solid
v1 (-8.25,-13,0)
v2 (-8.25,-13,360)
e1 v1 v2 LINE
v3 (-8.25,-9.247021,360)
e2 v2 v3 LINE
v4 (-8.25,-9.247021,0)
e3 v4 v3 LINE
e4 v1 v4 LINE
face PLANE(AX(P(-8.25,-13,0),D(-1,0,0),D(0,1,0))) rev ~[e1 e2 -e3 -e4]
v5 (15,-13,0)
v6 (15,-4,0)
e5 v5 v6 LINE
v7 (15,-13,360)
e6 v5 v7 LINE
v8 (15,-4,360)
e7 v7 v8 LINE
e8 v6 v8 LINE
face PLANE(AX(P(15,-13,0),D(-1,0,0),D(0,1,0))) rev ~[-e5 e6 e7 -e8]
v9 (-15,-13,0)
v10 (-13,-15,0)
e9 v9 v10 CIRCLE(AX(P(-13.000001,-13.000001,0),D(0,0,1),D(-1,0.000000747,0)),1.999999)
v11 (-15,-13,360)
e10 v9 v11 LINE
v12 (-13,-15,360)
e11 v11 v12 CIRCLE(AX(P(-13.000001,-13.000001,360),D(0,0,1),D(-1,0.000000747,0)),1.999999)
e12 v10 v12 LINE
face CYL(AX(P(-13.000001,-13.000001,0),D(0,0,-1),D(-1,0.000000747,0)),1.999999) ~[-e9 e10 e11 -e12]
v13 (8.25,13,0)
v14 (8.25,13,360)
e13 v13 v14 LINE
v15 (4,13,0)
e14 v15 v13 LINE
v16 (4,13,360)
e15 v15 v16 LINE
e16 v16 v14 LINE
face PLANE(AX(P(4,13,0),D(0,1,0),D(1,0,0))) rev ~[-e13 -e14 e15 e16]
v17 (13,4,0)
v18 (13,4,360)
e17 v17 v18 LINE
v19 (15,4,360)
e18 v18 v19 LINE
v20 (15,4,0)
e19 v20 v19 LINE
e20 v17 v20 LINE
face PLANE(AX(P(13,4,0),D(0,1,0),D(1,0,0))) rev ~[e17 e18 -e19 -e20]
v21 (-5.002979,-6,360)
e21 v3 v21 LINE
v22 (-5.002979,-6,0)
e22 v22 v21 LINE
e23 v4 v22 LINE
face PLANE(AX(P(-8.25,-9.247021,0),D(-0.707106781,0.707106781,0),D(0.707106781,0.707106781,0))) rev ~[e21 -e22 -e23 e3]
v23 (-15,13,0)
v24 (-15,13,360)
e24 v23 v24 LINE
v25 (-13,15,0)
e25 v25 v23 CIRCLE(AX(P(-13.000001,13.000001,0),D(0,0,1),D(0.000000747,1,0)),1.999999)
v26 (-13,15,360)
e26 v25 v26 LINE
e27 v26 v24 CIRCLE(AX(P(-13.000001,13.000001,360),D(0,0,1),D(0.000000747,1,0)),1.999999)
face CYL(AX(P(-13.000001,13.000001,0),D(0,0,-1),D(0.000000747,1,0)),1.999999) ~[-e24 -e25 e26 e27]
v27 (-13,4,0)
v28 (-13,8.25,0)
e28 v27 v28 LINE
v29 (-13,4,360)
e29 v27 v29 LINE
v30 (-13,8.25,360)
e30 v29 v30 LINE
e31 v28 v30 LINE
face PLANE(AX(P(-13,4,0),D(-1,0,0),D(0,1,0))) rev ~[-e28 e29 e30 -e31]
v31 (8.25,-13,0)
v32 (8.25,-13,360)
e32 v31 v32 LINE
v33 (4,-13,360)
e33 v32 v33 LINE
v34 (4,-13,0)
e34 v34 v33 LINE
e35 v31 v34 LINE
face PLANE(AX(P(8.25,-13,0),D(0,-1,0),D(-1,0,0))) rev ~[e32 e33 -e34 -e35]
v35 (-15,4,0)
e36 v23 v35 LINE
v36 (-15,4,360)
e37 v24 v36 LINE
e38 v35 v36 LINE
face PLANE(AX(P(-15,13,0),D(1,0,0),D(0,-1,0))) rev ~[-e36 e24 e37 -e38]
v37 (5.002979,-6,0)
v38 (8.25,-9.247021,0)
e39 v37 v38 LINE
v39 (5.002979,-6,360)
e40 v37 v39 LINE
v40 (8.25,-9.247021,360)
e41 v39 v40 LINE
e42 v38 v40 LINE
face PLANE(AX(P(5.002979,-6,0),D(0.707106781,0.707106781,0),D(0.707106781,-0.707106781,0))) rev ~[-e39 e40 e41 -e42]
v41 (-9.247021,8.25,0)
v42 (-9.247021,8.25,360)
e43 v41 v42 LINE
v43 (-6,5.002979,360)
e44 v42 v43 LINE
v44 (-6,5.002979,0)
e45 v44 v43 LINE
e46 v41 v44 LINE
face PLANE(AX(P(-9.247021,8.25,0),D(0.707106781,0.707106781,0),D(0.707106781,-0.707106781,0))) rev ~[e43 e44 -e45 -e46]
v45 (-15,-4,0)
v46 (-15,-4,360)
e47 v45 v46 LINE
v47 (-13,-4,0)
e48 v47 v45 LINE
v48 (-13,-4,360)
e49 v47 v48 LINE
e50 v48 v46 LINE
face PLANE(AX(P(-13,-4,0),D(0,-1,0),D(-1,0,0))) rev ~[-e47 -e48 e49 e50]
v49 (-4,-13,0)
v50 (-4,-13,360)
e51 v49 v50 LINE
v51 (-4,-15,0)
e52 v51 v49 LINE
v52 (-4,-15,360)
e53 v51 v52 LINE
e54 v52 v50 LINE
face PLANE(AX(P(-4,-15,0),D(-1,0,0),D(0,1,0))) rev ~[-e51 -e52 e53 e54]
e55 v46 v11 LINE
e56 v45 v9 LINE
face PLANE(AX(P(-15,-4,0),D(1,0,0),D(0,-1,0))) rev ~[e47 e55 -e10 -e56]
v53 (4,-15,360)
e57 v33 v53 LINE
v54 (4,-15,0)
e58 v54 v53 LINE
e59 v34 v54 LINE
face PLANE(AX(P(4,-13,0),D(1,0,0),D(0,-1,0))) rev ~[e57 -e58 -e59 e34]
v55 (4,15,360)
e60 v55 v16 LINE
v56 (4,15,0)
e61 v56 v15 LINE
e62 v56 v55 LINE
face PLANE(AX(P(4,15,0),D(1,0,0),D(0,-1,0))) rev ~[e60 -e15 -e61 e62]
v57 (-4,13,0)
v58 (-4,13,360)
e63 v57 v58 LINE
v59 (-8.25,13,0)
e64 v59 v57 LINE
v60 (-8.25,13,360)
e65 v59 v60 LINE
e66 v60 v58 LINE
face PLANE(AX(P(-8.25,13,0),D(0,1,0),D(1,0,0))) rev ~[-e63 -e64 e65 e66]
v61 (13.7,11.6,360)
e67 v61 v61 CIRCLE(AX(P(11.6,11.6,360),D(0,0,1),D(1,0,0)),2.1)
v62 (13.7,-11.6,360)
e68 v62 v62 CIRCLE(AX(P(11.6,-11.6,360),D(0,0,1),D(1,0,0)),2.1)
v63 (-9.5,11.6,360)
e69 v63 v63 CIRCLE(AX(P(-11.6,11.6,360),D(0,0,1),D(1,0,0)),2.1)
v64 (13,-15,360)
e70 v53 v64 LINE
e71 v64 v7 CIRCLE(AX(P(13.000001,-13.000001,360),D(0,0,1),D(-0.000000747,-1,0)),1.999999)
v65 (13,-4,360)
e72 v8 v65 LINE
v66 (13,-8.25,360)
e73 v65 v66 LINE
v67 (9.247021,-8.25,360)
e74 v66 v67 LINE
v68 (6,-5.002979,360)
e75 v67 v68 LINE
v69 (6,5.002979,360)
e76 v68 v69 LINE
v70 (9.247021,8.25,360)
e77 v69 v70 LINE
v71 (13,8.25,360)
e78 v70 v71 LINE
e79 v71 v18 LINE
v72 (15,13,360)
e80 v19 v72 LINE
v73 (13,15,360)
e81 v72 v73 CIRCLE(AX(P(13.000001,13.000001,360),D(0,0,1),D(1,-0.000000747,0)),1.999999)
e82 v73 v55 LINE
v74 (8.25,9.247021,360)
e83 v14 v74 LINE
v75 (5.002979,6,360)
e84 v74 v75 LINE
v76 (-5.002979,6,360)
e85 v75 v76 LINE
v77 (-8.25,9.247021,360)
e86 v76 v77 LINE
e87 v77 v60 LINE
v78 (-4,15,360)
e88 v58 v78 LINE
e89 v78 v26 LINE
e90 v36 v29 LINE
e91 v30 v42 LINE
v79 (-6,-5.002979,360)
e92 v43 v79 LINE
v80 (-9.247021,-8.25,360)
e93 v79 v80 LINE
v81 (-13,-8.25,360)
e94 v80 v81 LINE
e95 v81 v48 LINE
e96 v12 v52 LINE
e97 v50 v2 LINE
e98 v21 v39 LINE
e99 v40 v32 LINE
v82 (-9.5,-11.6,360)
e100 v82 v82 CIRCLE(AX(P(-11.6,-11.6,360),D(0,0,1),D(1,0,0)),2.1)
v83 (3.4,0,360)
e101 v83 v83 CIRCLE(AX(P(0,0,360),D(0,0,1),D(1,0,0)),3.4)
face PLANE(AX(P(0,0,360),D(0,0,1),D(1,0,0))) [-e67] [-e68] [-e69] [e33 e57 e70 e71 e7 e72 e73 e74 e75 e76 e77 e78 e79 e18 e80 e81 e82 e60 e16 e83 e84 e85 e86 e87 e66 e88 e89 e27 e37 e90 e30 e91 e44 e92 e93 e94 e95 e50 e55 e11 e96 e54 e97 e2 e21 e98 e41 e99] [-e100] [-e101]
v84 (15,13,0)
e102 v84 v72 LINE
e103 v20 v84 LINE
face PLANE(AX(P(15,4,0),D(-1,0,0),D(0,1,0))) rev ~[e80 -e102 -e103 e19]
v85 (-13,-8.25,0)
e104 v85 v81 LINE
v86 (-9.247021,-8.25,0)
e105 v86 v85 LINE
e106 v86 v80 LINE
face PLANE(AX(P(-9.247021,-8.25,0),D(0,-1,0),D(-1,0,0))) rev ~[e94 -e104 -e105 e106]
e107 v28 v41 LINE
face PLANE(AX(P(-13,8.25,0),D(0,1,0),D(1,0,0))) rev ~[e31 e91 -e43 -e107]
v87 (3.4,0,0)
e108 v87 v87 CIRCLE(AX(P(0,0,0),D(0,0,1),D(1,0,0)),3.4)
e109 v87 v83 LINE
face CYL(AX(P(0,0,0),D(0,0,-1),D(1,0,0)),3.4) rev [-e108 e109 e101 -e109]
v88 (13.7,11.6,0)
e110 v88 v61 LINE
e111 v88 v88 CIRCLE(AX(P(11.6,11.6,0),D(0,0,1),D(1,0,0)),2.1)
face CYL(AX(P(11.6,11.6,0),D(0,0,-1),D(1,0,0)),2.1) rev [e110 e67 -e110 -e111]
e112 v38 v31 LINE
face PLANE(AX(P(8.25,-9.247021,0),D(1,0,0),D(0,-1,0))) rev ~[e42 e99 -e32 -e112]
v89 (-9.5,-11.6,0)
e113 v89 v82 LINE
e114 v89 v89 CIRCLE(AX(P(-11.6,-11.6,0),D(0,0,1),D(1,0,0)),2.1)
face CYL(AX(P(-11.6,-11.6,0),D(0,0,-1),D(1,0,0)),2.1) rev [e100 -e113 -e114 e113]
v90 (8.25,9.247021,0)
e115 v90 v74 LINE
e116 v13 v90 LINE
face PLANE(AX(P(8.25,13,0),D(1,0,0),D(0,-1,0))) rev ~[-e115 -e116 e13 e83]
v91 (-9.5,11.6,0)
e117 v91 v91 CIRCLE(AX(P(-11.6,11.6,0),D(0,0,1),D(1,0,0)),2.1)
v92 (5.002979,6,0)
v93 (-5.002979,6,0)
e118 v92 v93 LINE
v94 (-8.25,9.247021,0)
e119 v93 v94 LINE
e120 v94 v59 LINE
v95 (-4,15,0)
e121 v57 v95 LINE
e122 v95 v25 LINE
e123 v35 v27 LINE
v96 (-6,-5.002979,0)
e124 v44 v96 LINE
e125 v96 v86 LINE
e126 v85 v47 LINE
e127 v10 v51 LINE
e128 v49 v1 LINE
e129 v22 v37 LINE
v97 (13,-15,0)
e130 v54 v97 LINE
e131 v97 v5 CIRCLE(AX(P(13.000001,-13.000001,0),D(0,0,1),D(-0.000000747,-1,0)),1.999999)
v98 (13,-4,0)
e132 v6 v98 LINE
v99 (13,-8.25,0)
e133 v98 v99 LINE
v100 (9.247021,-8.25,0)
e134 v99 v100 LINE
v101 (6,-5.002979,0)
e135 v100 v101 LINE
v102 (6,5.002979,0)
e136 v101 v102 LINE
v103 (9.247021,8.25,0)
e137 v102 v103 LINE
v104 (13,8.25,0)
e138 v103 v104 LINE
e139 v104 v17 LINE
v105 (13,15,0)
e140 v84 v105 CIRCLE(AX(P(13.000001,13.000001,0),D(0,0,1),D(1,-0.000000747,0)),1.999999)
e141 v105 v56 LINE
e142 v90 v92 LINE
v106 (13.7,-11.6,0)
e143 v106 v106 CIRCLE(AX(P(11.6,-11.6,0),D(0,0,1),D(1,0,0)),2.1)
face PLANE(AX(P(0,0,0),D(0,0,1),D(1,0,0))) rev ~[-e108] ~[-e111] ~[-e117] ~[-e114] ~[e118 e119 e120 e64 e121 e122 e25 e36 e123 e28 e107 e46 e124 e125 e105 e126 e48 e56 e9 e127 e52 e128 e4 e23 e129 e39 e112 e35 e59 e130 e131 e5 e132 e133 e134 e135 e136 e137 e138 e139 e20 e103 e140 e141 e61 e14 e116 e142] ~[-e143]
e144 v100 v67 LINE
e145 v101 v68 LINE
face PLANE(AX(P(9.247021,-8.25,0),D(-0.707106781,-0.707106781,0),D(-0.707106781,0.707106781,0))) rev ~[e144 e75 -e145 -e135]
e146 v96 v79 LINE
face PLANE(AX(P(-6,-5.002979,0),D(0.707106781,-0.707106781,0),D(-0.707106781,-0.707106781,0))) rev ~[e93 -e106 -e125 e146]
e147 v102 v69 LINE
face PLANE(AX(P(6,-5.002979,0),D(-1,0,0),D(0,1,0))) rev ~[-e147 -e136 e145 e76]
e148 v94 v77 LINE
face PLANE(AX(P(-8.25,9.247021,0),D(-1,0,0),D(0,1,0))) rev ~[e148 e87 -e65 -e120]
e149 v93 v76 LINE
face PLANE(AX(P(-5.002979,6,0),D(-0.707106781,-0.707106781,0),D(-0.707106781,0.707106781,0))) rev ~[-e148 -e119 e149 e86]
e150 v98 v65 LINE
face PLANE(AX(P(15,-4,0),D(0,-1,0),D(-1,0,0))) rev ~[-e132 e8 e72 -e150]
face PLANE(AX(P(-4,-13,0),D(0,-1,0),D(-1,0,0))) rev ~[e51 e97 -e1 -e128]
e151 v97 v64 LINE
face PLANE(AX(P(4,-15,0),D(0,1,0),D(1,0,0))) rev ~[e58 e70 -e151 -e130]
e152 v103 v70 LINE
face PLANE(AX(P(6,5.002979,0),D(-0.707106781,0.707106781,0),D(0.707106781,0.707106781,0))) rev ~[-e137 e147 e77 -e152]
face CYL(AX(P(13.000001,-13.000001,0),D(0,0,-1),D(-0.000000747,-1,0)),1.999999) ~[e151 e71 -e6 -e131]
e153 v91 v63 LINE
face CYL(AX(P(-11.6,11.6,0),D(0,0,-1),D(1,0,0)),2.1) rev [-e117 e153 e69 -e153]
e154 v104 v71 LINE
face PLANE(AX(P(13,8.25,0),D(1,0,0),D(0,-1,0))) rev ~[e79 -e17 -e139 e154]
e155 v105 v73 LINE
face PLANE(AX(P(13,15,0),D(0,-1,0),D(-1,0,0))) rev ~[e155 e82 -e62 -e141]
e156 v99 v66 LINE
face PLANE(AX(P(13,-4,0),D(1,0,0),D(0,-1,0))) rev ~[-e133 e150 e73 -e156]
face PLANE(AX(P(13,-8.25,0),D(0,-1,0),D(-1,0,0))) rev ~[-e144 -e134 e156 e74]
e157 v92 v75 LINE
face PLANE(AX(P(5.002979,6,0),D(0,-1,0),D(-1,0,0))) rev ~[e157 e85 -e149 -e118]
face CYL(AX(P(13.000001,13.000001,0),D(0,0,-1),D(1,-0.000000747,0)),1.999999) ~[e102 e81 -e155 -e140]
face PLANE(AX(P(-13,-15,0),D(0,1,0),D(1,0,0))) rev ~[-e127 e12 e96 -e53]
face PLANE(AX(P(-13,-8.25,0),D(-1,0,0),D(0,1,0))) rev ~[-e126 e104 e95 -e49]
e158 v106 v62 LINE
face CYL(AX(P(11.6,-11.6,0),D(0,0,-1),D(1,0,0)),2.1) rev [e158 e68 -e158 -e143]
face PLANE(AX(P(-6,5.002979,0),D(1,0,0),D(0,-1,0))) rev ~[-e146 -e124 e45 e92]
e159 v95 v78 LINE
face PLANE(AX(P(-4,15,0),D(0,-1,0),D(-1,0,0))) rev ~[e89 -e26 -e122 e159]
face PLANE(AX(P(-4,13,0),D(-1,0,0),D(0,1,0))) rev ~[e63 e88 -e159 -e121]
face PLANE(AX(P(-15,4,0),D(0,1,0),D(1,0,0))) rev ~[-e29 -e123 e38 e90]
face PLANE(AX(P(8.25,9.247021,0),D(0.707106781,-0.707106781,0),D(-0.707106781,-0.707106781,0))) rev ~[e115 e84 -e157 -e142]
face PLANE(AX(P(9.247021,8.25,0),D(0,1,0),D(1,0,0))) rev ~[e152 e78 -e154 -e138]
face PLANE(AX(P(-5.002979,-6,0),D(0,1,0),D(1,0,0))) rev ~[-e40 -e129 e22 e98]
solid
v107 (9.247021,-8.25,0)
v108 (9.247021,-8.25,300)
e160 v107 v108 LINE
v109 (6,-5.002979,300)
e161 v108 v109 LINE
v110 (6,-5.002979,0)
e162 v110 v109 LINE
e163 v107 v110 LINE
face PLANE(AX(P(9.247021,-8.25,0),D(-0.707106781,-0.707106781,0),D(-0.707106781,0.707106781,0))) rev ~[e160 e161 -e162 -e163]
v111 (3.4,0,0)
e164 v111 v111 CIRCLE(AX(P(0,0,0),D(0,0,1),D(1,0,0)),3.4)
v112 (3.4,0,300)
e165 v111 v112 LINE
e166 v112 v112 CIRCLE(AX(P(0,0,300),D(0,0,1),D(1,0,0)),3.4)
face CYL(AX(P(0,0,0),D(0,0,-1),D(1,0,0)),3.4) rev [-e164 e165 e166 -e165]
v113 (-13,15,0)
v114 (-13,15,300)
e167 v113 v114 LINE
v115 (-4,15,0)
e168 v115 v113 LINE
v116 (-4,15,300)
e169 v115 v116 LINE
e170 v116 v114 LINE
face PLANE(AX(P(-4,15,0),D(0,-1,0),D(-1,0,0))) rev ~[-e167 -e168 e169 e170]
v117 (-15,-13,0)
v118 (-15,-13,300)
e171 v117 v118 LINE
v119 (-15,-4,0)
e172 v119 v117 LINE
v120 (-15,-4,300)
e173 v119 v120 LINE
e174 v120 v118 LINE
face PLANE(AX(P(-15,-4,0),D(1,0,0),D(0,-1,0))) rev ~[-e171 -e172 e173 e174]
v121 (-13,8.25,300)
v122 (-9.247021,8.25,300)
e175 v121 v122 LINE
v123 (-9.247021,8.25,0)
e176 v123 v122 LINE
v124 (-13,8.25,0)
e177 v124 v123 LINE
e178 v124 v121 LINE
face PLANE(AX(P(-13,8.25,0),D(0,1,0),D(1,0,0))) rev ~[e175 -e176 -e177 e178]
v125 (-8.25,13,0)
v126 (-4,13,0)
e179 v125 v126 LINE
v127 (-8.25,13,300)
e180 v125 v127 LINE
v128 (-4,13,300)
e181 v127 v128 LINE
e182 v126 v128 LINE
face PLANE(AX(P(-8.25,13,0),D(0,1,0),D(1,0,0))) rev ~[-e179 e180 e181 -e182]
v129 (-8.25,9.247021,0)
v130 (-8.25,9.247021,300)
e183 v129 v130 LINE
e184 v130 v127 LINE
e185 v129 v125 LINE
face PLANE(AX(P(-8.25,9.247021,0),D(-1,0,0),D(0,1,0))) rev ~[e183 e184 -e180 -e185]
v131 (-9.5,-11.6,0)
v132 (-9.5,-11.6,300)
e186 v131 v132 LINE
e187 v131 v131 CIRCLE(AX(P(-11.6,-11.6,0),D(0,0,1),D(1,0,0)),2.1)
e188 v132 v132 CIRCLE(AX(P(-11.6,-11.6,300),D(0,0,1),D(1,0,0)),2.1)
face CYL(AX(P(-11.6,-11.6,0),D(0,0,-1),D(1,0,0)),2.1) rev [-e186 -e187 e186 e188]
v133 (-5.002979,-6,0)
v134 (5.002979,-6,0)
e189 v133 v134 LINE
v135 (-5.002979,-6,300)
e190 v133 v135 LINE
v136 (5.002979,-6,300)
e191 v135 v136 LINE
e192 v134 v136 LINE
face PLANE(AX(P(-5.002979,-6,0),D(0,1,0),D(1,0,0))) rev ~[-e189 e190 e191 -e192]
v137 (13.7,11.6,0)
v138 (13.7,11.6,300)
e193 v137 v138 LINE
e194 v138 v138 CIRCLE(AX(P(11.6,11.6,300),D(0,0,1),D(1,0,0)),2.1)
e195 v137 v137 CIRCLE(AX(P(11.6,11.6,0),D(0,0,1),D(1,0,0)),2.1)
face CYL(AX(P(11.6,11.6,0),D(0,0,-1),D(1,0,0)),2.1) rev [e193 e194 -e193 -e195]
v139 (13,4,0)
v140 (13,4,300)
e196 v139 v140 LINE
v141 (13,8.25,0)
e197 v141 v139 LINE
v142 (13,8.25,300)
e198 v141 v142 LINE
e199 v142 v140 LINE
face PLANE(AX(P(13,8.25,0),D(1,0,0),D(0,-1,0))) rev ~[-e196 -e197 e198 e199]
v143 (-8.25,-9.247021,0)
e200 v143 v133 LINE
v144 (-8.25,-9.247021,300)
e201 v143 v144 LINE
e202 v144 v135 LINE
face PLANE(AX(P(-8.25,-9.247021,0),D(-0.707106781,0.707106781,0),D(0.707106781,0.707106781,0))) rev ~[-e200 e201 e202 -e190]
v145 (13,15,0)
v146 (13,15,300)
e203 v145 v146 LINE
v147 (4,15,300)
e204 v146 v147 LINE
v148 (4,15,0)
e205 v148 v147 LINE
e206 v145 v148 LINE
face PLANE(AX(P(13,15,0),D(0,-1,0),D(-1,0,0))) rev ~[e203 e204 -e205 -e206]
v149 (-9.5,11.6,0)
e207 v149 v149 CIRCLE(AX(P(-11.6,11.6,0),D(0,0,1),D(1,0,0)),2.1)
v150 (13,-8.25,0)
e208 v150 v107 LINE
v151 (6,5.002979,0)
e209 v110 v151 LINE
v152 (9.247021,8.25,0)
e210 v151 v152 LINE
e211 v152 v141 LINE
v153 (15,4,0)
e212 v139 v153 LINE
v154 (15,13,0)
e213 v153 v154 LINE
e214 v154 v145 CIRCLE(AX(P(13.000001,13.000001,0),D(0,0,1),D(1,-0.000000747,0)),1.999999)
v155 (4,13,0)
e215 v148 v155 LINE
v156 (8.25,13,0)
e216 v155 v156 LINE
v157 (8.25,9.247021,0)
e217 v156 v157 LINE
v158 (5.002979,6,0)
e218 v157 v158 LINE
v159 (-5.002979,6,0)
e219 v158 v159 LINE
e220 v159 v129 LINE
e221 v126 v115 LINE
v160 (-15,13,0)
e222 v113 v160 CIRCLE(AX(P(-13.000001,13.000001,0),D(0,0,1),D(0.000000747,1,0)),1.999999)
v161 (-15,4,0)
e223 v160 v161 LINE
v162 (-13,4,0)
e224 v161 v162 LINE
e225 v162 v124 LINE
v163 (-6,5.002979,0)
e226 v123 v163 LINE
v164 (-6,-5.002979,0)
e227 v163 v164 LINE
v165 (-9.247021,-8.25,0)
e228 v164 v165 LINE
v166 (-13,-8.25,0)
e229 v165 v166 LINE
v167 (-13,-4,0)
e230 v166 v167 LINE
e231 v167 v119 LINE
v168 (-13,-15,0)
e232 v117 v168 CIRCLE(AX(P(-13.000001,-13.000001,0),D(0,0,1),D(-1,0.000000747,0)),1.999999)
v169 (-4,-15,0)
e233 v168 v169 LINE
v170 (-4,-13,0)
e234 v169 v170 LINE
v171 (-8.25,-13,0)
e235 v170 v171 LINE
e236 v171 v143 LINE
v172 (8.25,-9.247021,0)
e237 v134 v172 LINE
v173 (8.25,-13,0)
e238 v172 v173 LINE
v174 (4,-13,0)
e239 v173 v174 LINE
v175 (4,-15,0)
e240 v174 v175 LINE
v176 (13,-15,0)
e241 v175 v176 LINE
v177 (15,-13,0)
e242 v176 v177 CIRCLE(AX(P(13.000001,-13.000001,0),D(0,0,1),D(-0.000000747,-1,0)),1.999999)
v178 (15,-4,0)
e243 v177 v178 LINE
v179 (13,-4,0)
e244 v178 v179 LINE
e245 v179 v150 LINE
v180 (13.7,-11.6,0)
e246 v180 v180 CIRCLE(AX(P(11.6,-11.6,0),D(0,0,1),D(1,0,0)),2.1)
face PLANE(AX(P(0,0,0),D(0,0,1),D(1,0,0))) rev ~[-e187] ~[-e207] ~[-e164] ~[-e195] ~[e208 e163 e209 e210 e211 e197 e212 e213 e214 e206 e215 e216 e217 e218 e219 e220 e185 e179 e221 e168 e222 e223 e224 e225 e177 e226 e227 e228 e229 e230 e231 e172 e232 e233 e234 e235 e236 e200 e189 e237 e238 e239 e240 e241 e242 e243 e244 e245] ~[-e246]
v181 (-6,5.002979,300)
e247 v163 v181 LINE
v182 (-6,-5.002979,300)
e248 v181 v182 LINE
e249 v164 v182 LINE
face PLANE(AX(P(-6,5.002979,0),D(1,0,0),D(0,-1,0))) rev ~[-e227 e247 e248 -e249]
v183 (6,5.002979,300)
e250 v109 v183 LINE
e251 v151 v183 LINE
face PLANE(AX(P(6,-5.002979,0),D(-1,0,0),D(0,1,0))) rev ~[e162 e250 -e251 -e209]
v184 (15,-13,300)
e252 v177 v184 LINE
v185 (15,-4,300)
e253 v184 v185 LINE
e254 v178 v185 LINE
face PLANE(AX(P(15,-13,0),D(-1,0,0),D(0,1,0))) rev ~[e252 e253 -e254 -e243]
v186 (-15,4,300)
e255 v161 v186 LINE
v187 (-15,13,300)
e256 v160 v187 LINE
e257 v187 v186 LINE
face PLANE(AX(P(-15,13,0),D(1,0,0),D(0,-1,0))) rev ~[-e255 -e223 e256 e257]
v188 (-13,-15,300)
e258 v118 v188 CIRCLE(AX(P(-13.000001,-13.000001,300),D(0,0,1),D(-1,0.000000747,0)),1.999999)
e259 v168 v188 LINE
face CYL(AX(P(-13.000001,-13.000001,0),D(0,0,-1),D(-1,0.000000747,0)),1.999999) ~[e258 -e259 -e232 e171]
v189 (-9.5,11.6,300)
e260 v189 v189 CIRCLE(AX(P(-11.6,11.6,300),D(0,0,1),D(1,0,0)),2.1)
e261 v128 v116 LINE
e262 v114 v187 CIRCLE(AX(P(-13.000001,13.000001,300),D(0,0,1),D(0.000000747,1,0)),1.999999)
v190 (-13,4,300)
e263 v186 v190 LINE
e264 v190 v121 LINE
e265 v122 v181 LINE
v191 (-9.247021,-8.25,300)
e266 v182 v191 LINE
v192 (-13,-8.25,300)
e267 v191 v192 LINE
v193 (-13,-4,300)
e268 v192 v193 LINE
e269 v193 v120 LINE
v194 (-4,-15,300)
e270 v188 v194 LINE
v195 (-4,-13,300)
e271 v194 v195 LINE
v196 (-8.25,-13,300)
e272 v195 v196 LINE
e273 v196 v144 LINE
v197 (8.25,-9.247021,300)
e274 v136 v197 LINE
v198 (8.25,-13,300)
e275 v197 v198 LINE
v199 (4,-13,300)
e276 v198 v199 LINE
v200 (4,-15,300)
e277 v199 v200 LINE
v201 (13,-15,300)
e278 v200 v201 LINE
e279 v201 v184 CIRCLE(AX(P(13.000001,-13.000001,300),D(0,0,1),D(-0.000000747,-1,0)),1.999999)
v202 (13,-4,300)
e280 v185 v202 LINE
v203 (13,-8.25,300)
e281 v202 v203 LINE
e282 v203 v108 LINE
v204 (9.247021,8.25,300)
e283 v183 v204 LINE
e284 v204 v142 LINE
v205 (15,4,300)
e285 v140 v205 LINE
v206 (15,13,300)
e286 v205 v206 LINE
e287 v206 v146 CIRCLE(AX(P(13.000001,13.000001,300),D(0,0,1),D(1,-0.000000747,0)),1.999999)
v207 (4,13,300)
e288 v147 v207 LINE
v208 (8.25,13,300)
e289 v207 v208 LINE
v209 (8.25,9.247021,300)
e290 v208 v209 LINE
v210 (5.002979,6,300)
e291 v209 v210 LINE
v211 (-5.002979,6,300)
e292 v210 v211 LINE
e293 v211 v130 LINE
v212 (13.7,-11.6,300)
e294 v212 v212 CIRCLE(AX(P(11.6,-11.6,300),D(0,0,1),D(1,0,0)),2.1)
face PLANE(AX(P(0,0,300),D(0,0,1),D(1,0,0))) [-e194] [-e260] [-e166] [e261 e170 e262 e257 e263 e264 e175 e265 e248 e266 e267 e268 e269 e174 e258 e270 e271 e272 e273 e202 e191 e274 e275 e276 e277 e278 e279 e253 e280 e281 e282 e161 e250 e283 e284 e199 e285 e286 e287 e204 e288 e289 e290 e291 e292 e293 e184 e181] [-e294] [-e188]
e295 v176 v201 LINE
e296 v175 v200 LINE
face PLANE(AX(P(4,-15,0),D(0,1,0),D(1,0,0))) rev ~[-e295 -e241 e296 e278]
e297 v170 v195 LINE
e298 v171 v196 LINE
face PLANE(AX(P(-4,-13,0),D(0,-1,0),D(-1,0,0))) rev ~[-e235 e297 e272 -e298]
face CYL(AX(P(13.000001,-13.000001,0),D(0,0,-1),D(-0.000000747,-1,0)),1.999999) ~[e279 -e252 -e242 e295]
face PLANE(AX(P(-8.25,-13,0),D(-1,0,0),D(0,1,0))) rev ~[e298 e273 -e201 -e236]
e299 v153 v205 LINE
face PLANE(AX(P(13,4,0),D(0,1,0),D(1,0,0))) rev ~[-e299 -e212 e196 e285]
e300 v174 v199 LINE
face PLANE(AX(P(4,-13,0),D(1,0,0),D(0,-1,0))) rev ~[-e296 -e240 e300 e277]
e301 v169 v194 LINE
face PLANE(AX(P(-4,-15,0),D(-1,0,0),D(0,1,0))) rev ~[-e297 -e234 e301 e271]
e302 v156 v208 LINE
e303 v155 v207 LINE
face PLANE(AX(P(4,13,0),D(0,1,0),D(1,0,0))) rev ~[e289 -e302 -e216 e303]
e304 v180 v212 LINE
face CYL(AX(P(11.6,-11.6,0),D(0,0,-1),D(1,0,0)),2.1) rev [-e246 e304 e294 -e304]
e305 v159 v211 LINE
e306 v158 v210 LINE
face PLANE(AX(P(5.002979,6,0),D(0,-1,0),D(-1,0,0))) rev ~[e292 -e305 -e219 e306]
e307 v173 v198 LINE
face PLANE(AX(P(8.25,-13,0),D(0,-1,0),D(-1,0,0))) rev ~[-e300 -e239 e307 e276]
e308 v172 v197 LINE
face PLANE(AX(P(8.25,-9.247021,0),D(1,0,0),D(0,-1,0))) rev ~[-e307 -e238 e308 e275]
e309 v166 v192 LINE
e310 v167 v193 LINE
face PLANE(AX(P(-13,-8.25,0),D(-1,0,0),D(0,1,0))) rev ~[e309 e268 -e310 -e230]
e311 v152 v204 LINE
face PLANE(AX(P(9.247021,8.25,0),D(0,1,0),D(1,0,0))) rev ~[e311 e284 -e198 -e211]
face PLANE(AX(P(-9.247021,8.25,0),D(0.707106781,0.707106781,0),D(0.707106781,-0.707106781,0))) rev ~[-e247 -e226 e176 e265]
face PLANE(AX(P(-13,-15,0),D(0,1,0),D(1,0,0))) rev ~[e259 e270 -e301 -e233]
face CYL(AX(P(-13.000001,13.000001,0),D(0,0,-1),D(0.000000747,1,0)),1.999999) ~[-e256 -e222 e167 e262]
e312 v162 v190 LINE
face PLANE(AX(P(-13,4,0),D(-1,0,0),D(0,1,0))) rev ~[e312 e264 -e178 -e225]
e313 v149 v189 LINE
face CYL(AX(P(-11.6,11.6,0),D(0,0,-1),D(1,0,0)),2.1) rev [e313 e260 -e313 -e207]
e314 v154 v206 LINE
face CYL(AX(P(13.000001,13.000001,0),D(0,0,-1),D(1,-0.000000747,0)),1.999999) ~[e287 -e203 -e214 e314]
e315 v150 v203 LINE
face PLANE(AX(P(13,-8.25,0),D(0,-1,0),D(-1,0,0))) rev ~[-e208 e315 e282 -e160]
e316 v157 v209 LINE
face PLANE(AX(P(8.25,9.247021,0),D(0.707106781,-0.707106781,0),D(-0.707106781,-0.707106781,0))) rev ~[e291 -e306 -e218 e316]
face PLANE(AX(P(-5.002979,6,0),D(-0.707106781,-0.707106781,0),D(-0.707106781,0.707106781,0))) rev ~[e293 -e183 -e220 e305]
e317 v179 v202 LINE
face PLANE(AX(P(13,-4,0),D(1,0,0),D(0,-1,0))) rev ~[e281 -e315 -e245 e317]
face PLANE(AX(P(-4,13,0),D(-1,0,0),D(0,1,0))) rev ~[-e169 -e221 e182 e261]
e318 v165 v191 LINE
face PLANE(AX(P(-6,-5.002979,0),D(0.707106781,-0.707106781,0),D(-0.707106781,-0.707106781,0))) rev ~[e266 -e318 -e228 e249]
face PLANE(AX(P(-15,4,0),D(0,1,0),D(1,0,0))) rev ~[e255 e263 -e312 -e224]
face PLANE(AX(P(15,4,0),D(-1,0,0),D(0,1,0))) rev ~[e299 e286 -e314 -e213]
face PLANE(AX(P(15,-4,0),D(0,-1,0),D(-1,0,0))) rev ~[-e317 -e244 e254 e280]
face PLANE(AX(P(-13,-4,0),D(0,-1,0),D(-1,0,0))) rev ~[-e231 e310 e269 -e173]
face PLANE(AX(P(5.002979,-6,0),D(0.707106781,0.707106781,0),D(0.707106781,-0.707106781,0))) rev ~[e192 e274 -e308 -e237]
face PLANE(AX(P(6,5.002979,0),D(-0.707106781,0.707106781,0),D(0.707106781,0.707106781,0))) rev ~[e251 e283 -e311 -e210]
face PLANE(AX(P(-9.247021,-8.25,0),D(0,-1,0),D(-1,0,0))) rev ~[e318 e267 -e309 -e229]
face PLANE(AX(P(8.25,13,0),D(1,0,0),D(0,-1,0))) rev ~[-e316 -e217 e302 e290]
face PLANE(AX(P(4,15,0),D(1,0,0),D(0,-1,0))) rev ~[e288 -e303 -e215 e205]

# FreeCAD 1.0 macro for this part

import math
import FreeCAD as App
import Part
import Sketcher

doc = App.newDocument("Part")
body = doc.addObject("PartDesign::Body", "Body")

# Sketch on XY plane
sketch1 = body.newObject("Sketcher::SketchObject", "Sketch")
sketch1.AttachmentSupport = (doc.getObject("XY_Plane"), [""])
sketch1.MapMode = "FlatFace"
sketch1.addGeometry([
    Part.LineSegment(App.Vector(13, 15, 0), App.Vector(4, 15, 0)),  # 0
    Part.LineSegment(App.Vector(4, 15, 0), App.Vector(4, 13, 0)),  # 1
    Part.LineSegment(App.Vector(4, 13, 0), App.Vector(8.25, 13, 0)),  # 2
    Part.LineSegment(App.Vector(8.25, 13, 0), App.Vector(8.25, 9.247021, 0)),  # 3
    Part.LineSegment(App.Vector(8.25, 9.247021, 0), App.Vector(5.002979, 6, 0)),  # 4
    Part.LineSegment(App.Vector(5.002979, 6, 0), App.Vector(-5.002979, 6, 0)),  # 5
    Part.LineSegment(App.Vector(-5.002979, 6, 0), App.Vector(-8.25, 9.247021, 0)),  # 6
    Part.LineSegment(App.Vector(-8.25, 9.247021, 0), App.Vector(-8.25, 13, 0)),  # 7
    Part.LineSegment(App.Vector(-8.25, 13, 0), App.Vector(-4, 13, 0)),  # 8
    Part.LineSegment(App.Vector(-4, 13, 0), App.Vector(-4, 15, 0)),  # 9
    Part.LineSegment(App.Vector(-4, 15, 0), App.Vector(-13, 15, 0)),  # 10
    Part.ArcOfCircle(Part.Circle(App.Vector(-13.000001, 13.000001, 0), App.Vector(0, 0, 1), 1.999999), math.radians(89.999957), math.radians(180.000043)),  # 11
    Part.LineSegment(App.Vector(-15, 13, 0), App.Vector(-15, 4, 0)),  # 12
    Part.LineSegment(App.Vector(-15, 4, 0), App.Vector(-13, 4, 0)),  # 13
    Part.LineSegment(App.Vector(-13, 4, 0), App.Vector(-13, 8.25, 0)),  # 14
    Part.LineSegment(App.Vector(-13, 8.25, 0), App.Vector(-9.247021, 8.25, 0)),  # 15
    Part.LineSegment(App.Vector(-9.247021, 8.25, 0), App.Vector(-6, 5.002979, 0)),  # 16
    Part.LineSegment(App.Vector(-6, 5.002979, 0), App.Vector(-6, -5.002979, 0)),  # 17
    Part.LineSegment(App.Vector(-6, -5.002979, 0), App.Vector(-9.247021, -8.25, 0)),  # 18
    Part.LineSegment(App.Vector(-9.247021, -8.25, 0), App.Vector(-13, -8.25, 0)),  # 19
    Part.LineSegment(App.Vector(-13, -8.25, 0), App.Vector(-13, -4, 0)),  # 20
    Part.LineSegment(App.Vector(-13, -4, 0), App.Vector(-15, -4, 0)),  # 21
    Part.LineSegment(App.Vector(-15, -4, 0), App.Vector(-15, -13, 0)),  # 22
    Part.ArcOfCircle(Part.Circle(App.Vector(-13.000001, -13.000001, 0), App.Vector(0, 0, 1), 1.999999), math.radians(179.999957), math.radians(270.000043)),  # 23
    Part.LineSegment(App.Vector(-13, -15, 0), App.Vector(-4, -15, 0)),  # 24
    Part.LineSegment(App.Vector(-4, -15, 0), App.Vector(-4, -13, 0)),  # 25
    Part.LineSegment(App.Vector(-4, -13, 0), App.Vector(-8.25, -13, 0)),  # 26
    Part.LineSegment(App.Vector(-8.25, -13, 0), App.Vector(-8.25, -9.247021, 0)),  # 27
    Part.LineSegment(App.Vector(-8.25, -9.247021, 0), App.Vector(-5.002979, -6, 0)),  # 28
    Part.LineSegment(App.Vector(-5.002979, -6, 0), App.Vector(5.002979, -6, 0)),  # 29
    Part.LineSegment(App.Vector(5.002979, -6, 0), App.Vector(8.25, -9.247021, 0)),  # 30
    Part.LineSegment(App.Vector(8.25, -9.247021, 0), App.Vector(8.25, -13, 0)),  # 31
    Part.LineSegment(App.Vector(8.25, -13, 0), App.Vector(4, -13, 0)),  # 32
    Part.LineSegment(App.Vector(4, -13, 0), App.Vector(4, -15, 0)),  # 33
    Part.LineSegment(App.Vector(4, -15, 0), App.Vector(13, -15, 0)),  # 34
    Part.ArcOfCircle(Part.Circle(App.Vector(13.000001, -13.000001, 0), App.Vector(0, 0, 1), 1.999999), math.radians(-90.000043), math.radians(0.000043)),  # 35
    Part.LineSegment(App.Vector(15, -13, 0), App.Vector(15, -4, 0)),  # 36
    Part.LineSegment(App.Vector(15, -4, 0), App.Vector(13, -4, 0)),  # 37
    Part.LineSegment(App.Vector(13, -4, 0), App.Vector(13, -8.25, 0)),  # 38
    Part.LineSegment(App.Vector(13, -8.25, 0), App.Vector(9.247021, -8.25, 0)),  # 39
    Part.LineSegment(App.Vector(9.247021, -8.25, 0), App.Vector(6, -5.002979, 0)),  # 40
    Part.LineSegment(App.Vector(6, -5.002979, 0), App.Vector(6, 5.002979, 0)),  # 41
    Part.LineSegment(App.Vector(6, 5.002979, 0), App.Vector(9.247021, 8.25, 0)),  # 42
    Part.LineSegment(App.Vector(9.247021, 8.25, 0), App.Vector(13, 8.25, 0)),  # 43
    Part.LineSegment(App.Vector(13, 8.25, 0), App.Vector(13, 4, 0)),  # 44
    Part.LineSegment(App.Vector(13, 4, 0), App.Vector(15, 4, 0)),  # 45
    Part.LineSegment(App.Vector(15, 4, 0), App.Vector(15, 13, 0)),  # 46
    Part.ArcOfCircle(Part.Circle(App.Vector(13.000001, 13.000001, 0), App.Vector(0, 0, 1), 1.999999), math.radians(-0.000043), math.radians(90.000043)),  # 47
    Part.Circle(App.Vector(-11.6, -11.6, 0), App.Vector(0, 0, 1), 2.1),  # 48
    Part.Circle(App.Vector(11.6, -11.6, 0), App.Vector(0, 0, 1), 2.1),  # 49
    Part.Circle(App.Vector(-11.6, 11.6, 0), App.Vector(0, 0, 1), 2.1),  # 50
    Part.Circle(App.Vector(0, 0, 0), App.Vector(0, 0, 1), 3.4),  # 51
    Part.Circle(App.Vector(11.6, 11.6, 0), App.Vector(0, 0, 1), 2.1),  # 52
], False)
sketch1.addConstraint([
    Sketcher.Constraint("Coincident", 0, 2, 1, 1),
    Sketcher.Constraint("Coincident", 1, 2, 2, 1),
    Sketcher.Constraint("Coincident", 2, 2, 3, 1),
    Sketcher.Constraint("Coincident", 3, 2, 4, 1),
    Sketcher.Constraint("Coincident", 4, 2, 5, 1),
    Sketcher.Constraint("Coincident", 5, 2, 6, 1),
    Sketcher.Constraint("Coincident", 6, 2, 7, 1),
    Sketcher.Constraint("Coincident", 7, 2, 8, 1),
    Sketcher.Constraint("Coincident", 8, 2, 9, 1),
    Sketcher.Constraint("Coincident", 9, 2, 10, 1),
    Sketcher.Constraint("Tangent", 10, 2, 11, 1),
    Sketcher.Constraint("Tangent", 11, 2, 12, 1),
    Sketcher.Constraint("Coincident", 12, 2, 13, 1),
    Sketcher.Constraint("Coincident", 13, 2, 14, 1),
    Sketcher.Constraint("Coincident", 14, 2, 15, 1),
    Sketcher.Constraint("Coincident", 15, 2, 16, 1),
    Sketcher.Constraint("Coincident", 16, 2, 17, 1),
    Sketcher.Constraint("Coincident", 17, 2, 18, 1),
    Sketcher.Constraint("Coincident", 18, 2, 19, 1),
    Sketcher.Constraint("Coincident", 19, 2, 20, 1),
    Sketcher.Constraint("Coincident", 20, 2, 21, 1),
    Sketcher.Constraint("Coincident", 21, 2, 22, 1),
    Sketcher.Constraint("Tangent", 22, 2, 23, 1),
    Sketcher.Constraint("Tangent", 23, 2, 24, 1),
    Sketcher.Constraint("Coincident", 24, 2, 25, 1),
    Sketcher.Constraint("Coincident", 25, 2, 26, 1),
    Sketcher.Constraint("Coincident", 26, 2, 27, 1),
    Sketcher.Constraint("Coincident", 27, 2, 28, 1),
    Sketcher.Constraint("Coincident", 28, 2, 29, 1),
    Sketcher.Constraint("Coincident", 29, 2, 30, 1),
    Sketcher.Constraint("Coincident", 30, 2, 31, 1),
    Sketcher.Constraint("Coincident", 31, 2, 32, 1),
    Sketcher.Constraint("Coincident", 32, 2, 33, 1),
    Sketcher.Constraint("Coincident", 33, 2, 34, 1),
    Sketcher.Constraint("Tangent", 34, 2, 35, 1),
    Sketcher.Constraint("Tangent", 35, 2, 36, 1),
    Sketcher.Constraint("Coincident", 36, 2, 37, 1),
    Sketcher.Constraint("Coincident", 37, 2, 38, 1),
    Sketcher.Constraint("Coincident", 38, 2, 39, 1),
    Sketcher.Constraint("Coincident", 39, 2, 40, 1),
    Sketcher.Constraint("Coincident", 40, 2, 41, 1),
    Sketcher.Constraint("Coincident", 41, 2, 42, 1),
    Sketcher.Constraint("Coincident", 42, 2, 43, 1),
    Sketcher.Constraint("Coincident", 43, 2, 44, 1),
    Sketcher.Constraint("Coincident", 44, 2, 45, 1),
    Sketcher.Constraint("Coincident", 45, 2, 46, 1),
    Sketcher.Constraint("Tangent", 46, 2, 47, 1),
    Sketcher.Constraint("Tangent", 47, 2, 0, 1),
    Sketcher.Constraint("Horizontal", 0),
    Sketcher.Constraint("Vertical", 1),
    Sketcher.Constraint("Horizontal", 2),
    Sketcher.Constraint("Vertical", 3),
    Sketcher.Constraint("Horizontal", 5),
    Sketcher.Constraint("Vertical", 7),
    Sketcher.Constraint("Horizontal", 8),
    Sketcher.Constraint("Vertical", 9),
    Sketcher.Constraint("Horizontal", 10),
    Sketcher.Constraint("Vertical", 12),
    Sketcher.Constraint("Horizontal", 13),
    Sketcher.Constraint("Vertical", 14),
    Sketcher.Constraint("Horizontal", 15),
    Sketcher.Constraint("Vertical", 17),
    Sketcher.Constraint("Horizontal", 19),
    Sketcher.Constraint("Vertical", 20),
    Sketcher.Constraint("Horizontal", 21),
    Sketcher.Constraint("Vertical", 22),
    Sketcher.Constraint("Horizontal", 24),
    Sketcher.Constraint("Vertical", 25),
    Sketcher.Constraint("Horizontal", 26),
    Sketcher.Constraint("Vertical", 27),
    Sketcher.Constraint("Horizontal", 29),
    Sketcher.Constraint("Vertical", 31),
    Sketcher.Constraint("Horizontal", 32),
    Sketcher.Constraint("Vertical", 33),
    Sketcher.Constraint("Horizontal", 34),
    Sketcher.Constraint("Vertical", 36),
    Sketcher.Constraint("Horizontal", 37),
    Sketcher.Constraint("Vertical", 38),
    Sketcher.Constraint("Horizontal", 39),
    Sketcher.Constraint("Vertical", 41),
    Sketcher.Constraint("Horizontal", 43),
    Sketcher.Constraint("Vertical", 44),
    Sketcher.Constraint("Horizontal", 45),
    Sketcher.Constraint("Vertical", 46),
    Sketcher.Constraint("Coincident", 51, 3, -1, 1),
    Sketcher.Constraint("Equal", 11, 23),
    Sketcher.Constraint("Equal", 23, 35),
    Sketcher.Constraint("Equal", 35, 47),
    Sketcher.Constraint("Equal", 48, 49),
    Sketcher.Constraint("Equal", 49, 50),
    Sketcher.Constraint("Equal", 50, 52),
    Sketcher.Constraint("Symmetric", 11, 3, 35, 3, -1, 1),
    Sketcher.Constraint("Symmetric", 23, 3, 47, 3, -1, 1),
    Sketcher.Constraint("Symmetric", 49, 3, 50, 3, -1, 1),
    Sketcher.Constraint("Symmetric", 48, 3, 52, 3, -1, 1),
    Sketcher.Constraint("Symmetric", 1, 2, 25, 2, -1, 1),
    Sketcher.Constraint("Symmetric", 3, 2, 27, 2, -1, 1),
    Sketcher.Constraint("Symmetric", 4, 2, 28, 2, -1, 1),
    Sketcher.Constraint("Symmetric", 6, 2, 30, 2, -1, 1),
    Sketcher.Constraint("Symmetric", 8, 2, 32, 2, -1, 1),
    Sketcher.Constraint("Symmetric", 13, 2, 37, 2, -1, 1),
    Sketcher.Constraint("Symmetric", 15, 2, 39, 2, -1, 1),
    Sketcher.Constraint("Symmetric", 16, 2, 40, 2, -1, 1),
    Sketcher.Constraint("Symmetric", 18, 2, 42, 2, -1, 1),
    Sketcher.Constraint("Symmetric", 20, 2, 44, 2, -1, 1),
    Sketcher.Constraint("Symmetric", 23, 3, 35, 3, -2),
    Sketcher.Constraint("Symmetric", 48, 3, 49, 3, -2),
    Sketcher.Constraint("Symmetric", 3, 2, 6, 2, -2),
    Sketcher.Constraint("Symmetric", 1, 2, 8, 2, -2),
    Sketcher.Constraint("Symmetric", 20, 2, 37, 2, -2),
    Sketcher.Constraint("Symmetric", 18, 2, 39, 2, -2),
    Sketcher.Constraint("Perpendicular", 4, 6),
    Sketcher.Constraint("Parallel", 6, 16),
    Sketcher.Constraint("Perpendicular", 16, 18),
    Sketcher.Constraint("Perpendicular", 28, 30),
    Sketcher.Constraint("Perpendicular", 40, 42),
    Sketcher.Constraint("Horizontal", 47, 3, 1, 2),
    Sketcher.Constraint("Horizontal", 17, 2, 40, 2),
    Sketcher.Constraint("Vertical", 10, 2, 13, 2),
    Sketcher.Constraint("Equal", 43, 3),
    Sketcher.Constraint("Equal", 34, 12),
    Sketcher.Constraint("Equal", 32, 14),
    Sketcher.Constraint("Equal", 29, 17),
    Sketcher.Constraint("Equal", 6, 16),
    Sketcher.Constraint("Radius", 11, 1.999999),
    Sketcher.Constraint("Diameter", 48, 4.2),
    Sketcher.Constraint("Diameter", 51, 6.8),
    Sketcher.Constraint("DistanceX", 0, 2, 0, 1, 9.0),
    Sketcher.Constraint("DistanceX", 11, 3, -1, 1, 13.000001),
    Sketcher.Constraint("DistanceY", -1, 1, 4, 2, 6.0),
    Sketcher.Constraint("DistanceX", 2, 1, 2, 2, 4.25),
    Sketcher.Constraint("DistanceX", 48, 3, -1, 1, 11.6),
    Sketcher.Constraint("DistanceY", 48, 3, -1, 1, 11.6),
    Sketcher.Constraint("DistanceX", 15, 1, 15, 2, 3.752979),
])
pad1 = body.newObject("PartDesign::Pad", "Pad")
pad1.Profile = sketch1
pad1.Length = 300
body2 = doc.addObject("PartDesign::Body", "Body001")

# Sketch on XY plane
sketch2 = body2.newObject("Sketcher::SketchObject", "Sketch001")
sketch2.AttachmentSupport = (doc.getObject("XY_Plane001"), [""])
sketch2.MapMode = "FlatFace"
sketch2.addGeometry([
    Part.LineSegment(App.Vector(13, 15, 0), App.Vector(4, 15, 0)),  # 0
    Part.LineSegment(App.Vector(4, 15, 0), App.Vector(4, 13, 0)),  # 1
    Part.LineSegment(App.Vector(4, 13, 0), App.Vector(8.25, 13, 0)),  # 2
    Part.LineSegment(App.Vector(8.25, 13, 0), App.Vector(8.25, 9.247021, 0)),  # 3
    Part.LineSegment(App.Vector(8.25, 9.247021, 0), App.Vector(5.002979, 6, 0)),  # 4
    Part.LineSegment(App.Vector(5.002979, 6, 0), App.Vector(-5.002979, 6, 0)),  # 5
    Part.LineSegment(App.Vector(-5.002979, 6, 0), App.Vector(-8.25, 9.247021, 0)),  # 6
    Part.LineSegment(App.Vector(-8.25, 9.247021, 0), App.Vector(-8.25, 13, 0)),  # 7
    Part.LineSegment(App.Vector(-8.25, 13, 0), App.Vector(-4, 13, 0)),  # 8
    Part.LineSegment(App.Vector(-4, 13, 0), App.Vector(-4, 15, 0)),  # 9
    Part.LineSegment(App.Vector(-4, 15, 0), App.Vector(-13, 15, 0)),  # 10
    Part.ArcOfCircle(Part.Circle(App.Vector(-13.000001, 13.000001, 0), App.Vector(0, 0, 1), 1.999999), math.radians(89.999957), math.radians(180.000043)),  # 11
    Part.LineSegment(App.Vector(-15, 13, 0), App.Vector(-15, 4, 0)),  # 12
    Part.LineSegment(App.Vector(-15, 4, 0), App.Vector(-13, 4, 0)),  # 13
    Part.LineSegment(App.Vector(-13, 4, 0), App.Vector(-13, 8.25, 0)),  # 14
    Part.LineSegment(App.Vector(-13, 8.25, 0), App.Vector(-9.247021, 8.25, 0)),  # 15
    Part.LineSegment(App.Vector(-9.247021, 8.25, 0), App.Vector(-6, 5.002979, 0)),  # 16
    Part.LineSegment(App.Vector(-6, 5.002979, 0), App.Vector(-6, -5.002979, 0)),  # 17
    Part.LineSegment(App.Vector(-6, -5.002979, 0), App.Vector(-9.247021, -8.25, 0)),  # 18
    Part.LineSegment(App.Vector(-9.247021, -8.25, 0), App.Vector(-13, -8.25, 0)),  # 19
    Part.LineSegment(App.Vector(-13, -8.25, 0), App.Vector(-13, -4, 0)),  # 20
    Part.LineSegment(App.Vector(-13, -4, 0), App.Vector(-15, -4, 0)),  # 21
    Part.LineSegment(App.Vector(-15, -4, 0), App.Vector(-15, -13, 0)),  # 22
    Part.ArcOfCircle(Part.Circle(App.Vector(-13.000001, -13.000001, 0), App.Vector(0, 0, 1), 1.999999), math.radians(179.999957), math.radians(270.000043)),  # 23
    Part.LineSegment(App.Vector(-13, -15, 0), App.Vector(-4, -15, 0)),  # 24
    Part.LineSegment(App.Vector(-4, -15, 0), App.Vector(-4, -13, 0)),  # 25
    Part.LineSegment(App.Vector(-4, -13, 0), App.Vector(-8.25, -13, 0)),  # 26
    Part.LineSegment(App.Vector(-8.25, -13, 0), App.Vector(-8.25, -9.247021, 0)),  # 27
    Part.LineSegment(App.Vector(-8.25, -9.247021, 0), App.Vector(-5.002979, -6, 0)),  # 28
    Part.LineSegment(App.Vector(-5.002979, -6, 0), App.Vector(5.002979, -6, 0)),  # 29
    Part.LineSegment(App.Vector(5.002979, -6, 0), App.Vector(8.25, -9.247021, 0)),  # 30
    Part.LineSegment(App.Vector(8.25, -9.247021, 0), App.Vector(8.25, -13, 0)),  # 31
    Part.LineSegment(App.Vector(8.25, -13, 0), App.Vector(4, -13, 0)),  # 32
    Part.LineSegment(App.Vector(4, -13, 0), App.Vector(4, -15, 0)),  # 33
    Part.LineSegment(App.Vector(4, -15, 0), App.Vector(13, -15, 0)),  # 34
    Part.ArcOfCircle(Part.Circle(App.Vector(13.000001, -13.000001, 0), App.Vector(0, 0, 1), 1.999999), math.radians(-90.000043), math.radians(0.000043)),  # 35
    Part.LineSegment(App.Vector(15, -13, 0), App.Vector(15, -4, 0)),  # 36
    Part.LineSegment(App.Vector(15, -4, 0), App.Vector(13, -4, 0)),  # 37
    Part.LineSegment(App.Vector(13, -4, 0), App.Vector(13, -8.25, 0)),  # 38
    Part.LineSegment(App.Vector(13, -8.25, 0), App.Vector(9.247021, -8.25, 0)),  # 39
    Part.LineSegment(App.Vector(9.247021, -8.25, 0), App.Vector(6, -5.002979, 0)),  # 40
    Part.LineSegment(App.Vector(6, -5.002979, 0), App.Vector(6, 5.002979, 0)),  # 41
    Part.LineSegment(App.Vector(6, 5.002979, 0), App.Vector(9.247021, 8.25, 0)),  # 42
    Part.LineSegment(App.Vector(9.247021, 8.25, 0), App.Vector(13, 8.25, 0)),  # 43
    Part.LineSegment(App.Vector(13, 8.25, 0), App.Vector(13, 4, 0)),  # 44
    Part.LineSegment(App.Vector(13, 4, 0), App.Vector(15, 4, 0)),  # 45
    Part.LineSegment(App.Vector(15, 4, 0), App.Vector(15, 13, 0)),  # 46
    Part.ArcOfCircle(Part.Circle(App.Vector(13.000001, 13.000001, 0), App.Vector(0, 0, 1), 1.999999), math.radians(-0.000043), math.radians(90.000043)),  # 47
    Part.Circle(App.Vector(-11.6, -11.6, 0), App.Vector(0, 0, 1), 2.1),  # 48
    Part.Circle(App.Vector(11.6, -11.6, 0), App.Vector(0, 0, 1), 2.1),  # 49
    Part.Circle(App.Vector(-11.6, 11.6, 0), App.Vector(0, 0, 1), 2.1),  # 50
    Part.Circle(App.Vector(0, 0, 0), App.Vector(0, 0, 1), 3.4),  # 51
    Part.Circle(App.Vector(11.6, 11.6, 0), App.Vector(0, 0, 1), 2.1),  # 52
], False)
sketch2.addConstraint([
    Sketcher.Constraint("Coincident", 0, 2, 1, 1),
    Sketcher.Constraint("Coincident", 1, 2, 2, 1),
    Sketcher.Constraint("Coincident", 2, 2, 3, 1),
    Sketcher.Constraint("Coincident", 3, 2, 4, 1),
    Sketcher.Constraint("Coincident", 4, 2, 5, 1),
    Sketcher.Constraint("Coincident", 5, 2, 6, 1),
    Sketcher.Constraint("Coincident", 6, 2, 7, 1),
    Sketcher.Constraint("Coincident", 7, 2, 8, 1),
    Sketcher.Constraint("Coincident", 8, 2, 9, 1),
    Sketcher.Constraint("Coincident", 9, 2, 10, 1),
    Sketcher.Constraint("Tangent", 10, 2, 11, 1),
    Sketcher.Constraint("Tangent", 11, 2, 12, 1),
    Sketcher.Constraint("Coincident", 12, 2, 13, 1),
    Sketcher.Constraint("Coincident", 13, 2, 14, 1),
    Sketcher.Constraint("Coincident", 14, 2, 15, 1),
    Sketcher.Constraint("Coincident", 15, 2, 16, 1),
    Sketcher.Constraint("Coincident", 16, 2, 17, 1),
    Sketcher.Constraint("Coincident", 17, 2, 18, 1),
    Sketcher.Constraint("Coincident", 18, 2, 19, 1),
    Sketcher.Constraint("Coincident", 19, 2, 20, 1),
    Sketcher.Constraint("Coincident", 20, 2, 21, 1),
    Sketcher.Constraint("Coincident", 21, 2, 22, 1),
    Sketcher.Constraint("Tangent", 22, 2, 23, 1),
    Sketcher.Constraint("Tangent", 23, 2, 24, 1),
    Sketcher.Constraint("Coincident", 24, 2, 25, 1),
    Sketcher.Constraint("Coincident", 25, 2, 26, 1),
    Sketcher.Constraint("Coincident", 26, 2, 27, 1),
    Sketcher.Constraint("Coincident", 27, 2, 28, 1),
    Sketcher.Constraint("Coincident", 28, 2, 29, 1),
    Sketcher.Constraint("Coincident", 29, 2, 30, 1),
    Sketcher.Constraint("Coincident", 30, 2, 31, 1),
    Sketcher.Constraint("Coincident", 31, 2, 32, 1),
    Sketcher.Constraint("Coincident", 32, 2, 33, 1),
    Sketcher.Constraint("Coincident", 33, 2, 34, 1),
    Sketcher.Constraint("Tangent", 34, 2, 35, 1),
    Sketcher.Constraint("Tangent", 35, 2, 36, 1),
    Sketcher.Constraint("Coincident", 36, 2, 37, 1),
    Sketcher.Constraint("Coincident", 37, 2, 38, 1),
    Sketcher.Constraint("Coincident", 38, 2, 39, 1),
    Sketcher.Constraint("Coincident", 39, 2, 40, 1),
    Sketcher.Constraint("Coincident", 40, 2, 41, 1),
    Sketcher.Constraint("Coincident", 41, 2, 42, 1),
    Sketcher.Constraint("Coincident", 42, 2, 43, 1),
    Sketcher.Constraint("Coincident", 43, 2, 44, 1),
    Sketcher.Constraint("Coincident", 44, 2, 45, 1),
    Sketcher.Constraint("Coincident", 45, 2, 46, 1),
    Sketcher.Constraint("Tangent", 46, 2, 47, 1),
    Sketcher.Constraint("Tangent", 47, 2, 0, 1),
    Sketcher.Constraint("Horizontal", 0),
    Sketcher.Constraint("Vertical", 1),
    Sketcher.Constraint("Horizontal", 2),
    Sketcher.Constraint("Vertical", 3),
    Sketcher.Constraint("Horizontal", 5),
    Sketcher.Constraint("Vertical", 7),
    Sketcher.Constraint("Horizontal", 8),
    Sketcher.Constraint("Vertical", 9),
    Sketcher.Constraint("Horizontal", 10),
    Sketcher.Constraint("Vertical", 12),
    Sketcher.Constraint("Horizontal", 13),
    Sketcher.Constraint("Vertical", 14),
    Sketcher.Constraint("Horizontal", 15),
    Sketcher.Constraint("Vertical", 17),
    Sketcher.Constraint("Horizontal", 19),
    Sketcher.Constraint("Vertical", 20),
    Sketcher.Constraint("Horizontal", 21),
    Sketcher.Constraint("Vertical", 22),
    Sketcher.Constraint("Horizontal", 24),
    Sketcher.Constraint("Vertical", 25),
    Sketcher.Constraint("Horizontal", 26),
    Sketcher.Constraint("Vertical", 27),
    Sketcher.Constraint("Horizontal", 29),
    Sketcher.Constraint("Vertical", 31),
    Sketcher.Constraint("Horizontal", 32),
    Sketcher.Constraint("Vertical", 33),
    Sketcher.Constraint("Horizontal", 34),
    Sketcher.Constraint("Vertical", 36),
    Sketcher.Constraint("Horizontal", 37),
    Sketcher.Constraint("Vertical", 38),
    Sketcher.Constraint("Horizontal", 39),
    Sketcher.Constraint("Vertical", 41),
    Sketcher.Constraint("Horizontal", 43),
    Sketcher.Constraint("Vertical", 44),
    Sketcher.Constraint("Horizontal", 45),
    Sketcher.Constraint("Vertical", 46),
    Sketcher.Constraint("Coincident", 51, 3, -1, 1),
    Sketcher.Constraint("Equal", 11, 23),
    Sketcher.Constraint("Equal", 23, 35),
    Sketcher.Constraint("Equal", 35, 47),
    Sketcher.Constraint("Equal", 48, 49),
    Sketcher.Constraint("Equal", 49, 50),
    Sketcher.Constraint("Equal", 50, 52),
    Sketcher.Constraint("Symmetric", 11, 3, 35, 3, -1, 1),
    Sketcher.Constraint("Symmetric", 23, 3, 47, 3, -1, 1),
    Sketcher.Constraint("Symmetric", 49, 3, 50, 3, -1, 1),
    Sketcher.Constraint("Symmetric", 48, 3, 52, 3, -1, 1),
    Sketcher.Constraint("Symmetric", 1, 2, 25, 2, -1, 1),
    Sketcher.Constraint("Symmetric", 3, 2, 27, 2, -1, 1),
    Sketcher.Constraint("Symmetric", 4, 2, 28, 2, -1, 1),
    Sketcher.Constraint("Symmetric", 6, 2, 30, 2, -1, 1),
    Sketcher.Constraint("Symmetric", 8, 2, 32, 2, -1, 1),
    Sketcher.Constraint("Symmetric", 13, 2, 37, 2, -1, 1),
    Sketcher.Constraint("Symmetric", 15, 2, 39, 2, -1, 1),
    Sketcher.Constraint("Symmetric", 16, 2, 40, 2, -1, 1),
    Sketcher.Constraint("Symmetric", 18, 2, 42, 2, -1, 1),
    Sketcher.Constraint("Symmetric", 20, 2, 44, 2, -1, 1),
    Sketcher.Constraint("Symmetric", 23, 3, 35, 3, -2),
    Sketcher.Constraint("Symmetric", 48, 3, 49, 3, -2),
    Sketcher.Constraint("Symmetric", 3, 2, 6, 2, -2),
    Sketcher.Constraint("Symmetric", 1, 2, 8, 2, -2),
    Sketcher.Constraint("Symmetric", 20, 2, 37, 2, -2),
    Sketcher.Constraint("Symmetric", 18, 2, 39, 2, -2),
    Sketcher.Constraint("Perpendicular", 4, 6),
    Sketcher.Constraint("Parallel", 6, 16),
    Sketcher.Constraint("Perpendicular", 16, 18),
    Sketcher.Constraint("Perpendicular", 28, 30),
    Sketcher.Constraint("Perpendicular", 40, 42),
    Sketcher.Constraint("Horizontal", 47, 3, 1, 2),
    Sketcher.Constraint("Horizontal", 17, 2, 40, 2),
    Sketcher.Constraint("Vertical", 10, 2, 13, 2),
    Sketcher.Constraint("Equal", 43, 3),
    Sketcher.Constraint("Equal", 34, 12),
    Sketcher.Constraint("Equal", 32, 14),
    Sketcher.Constraint("Equal", 29, 17),
    Sketcher.Constraint("Equal", 6, 16),
    Sketcher.Constraint("Radius", 11, 1.999999),
    Sketcher.Constraint("Diameter", 48, 4.2),
    Sketcher.Constraint("Diameter", 51, 6.8),
    Sketcher.Constraint("DistanceX", 0, 2, 0, 1, 9.0),
    Sketcher.Constraint("DistanceX", 11, 3, -1, 1, 13.000001),
    Sketcher.Constraint("DistanceY", -1, 1, 4, 2, 6.0),
    Sketcher.Constraint("DistanceX", 2, 1, 2, 2, 4.25),
    Sketcher.Constraint("DistanceX", 48, 3, -1, 1, 11.6),
    Sketcher.Constraint("DistanceY", 48, 3, -1, 1, 11.6),
    Sketcher.Constraint("DistanceX", 15, 1, 15, 2, 3.752979),
])
pad2 = body2.newObject("PartDesign::Pad", "Pad001")
pad2.Profile = sketch2
pad2.Length = 360

doc.recompute()
